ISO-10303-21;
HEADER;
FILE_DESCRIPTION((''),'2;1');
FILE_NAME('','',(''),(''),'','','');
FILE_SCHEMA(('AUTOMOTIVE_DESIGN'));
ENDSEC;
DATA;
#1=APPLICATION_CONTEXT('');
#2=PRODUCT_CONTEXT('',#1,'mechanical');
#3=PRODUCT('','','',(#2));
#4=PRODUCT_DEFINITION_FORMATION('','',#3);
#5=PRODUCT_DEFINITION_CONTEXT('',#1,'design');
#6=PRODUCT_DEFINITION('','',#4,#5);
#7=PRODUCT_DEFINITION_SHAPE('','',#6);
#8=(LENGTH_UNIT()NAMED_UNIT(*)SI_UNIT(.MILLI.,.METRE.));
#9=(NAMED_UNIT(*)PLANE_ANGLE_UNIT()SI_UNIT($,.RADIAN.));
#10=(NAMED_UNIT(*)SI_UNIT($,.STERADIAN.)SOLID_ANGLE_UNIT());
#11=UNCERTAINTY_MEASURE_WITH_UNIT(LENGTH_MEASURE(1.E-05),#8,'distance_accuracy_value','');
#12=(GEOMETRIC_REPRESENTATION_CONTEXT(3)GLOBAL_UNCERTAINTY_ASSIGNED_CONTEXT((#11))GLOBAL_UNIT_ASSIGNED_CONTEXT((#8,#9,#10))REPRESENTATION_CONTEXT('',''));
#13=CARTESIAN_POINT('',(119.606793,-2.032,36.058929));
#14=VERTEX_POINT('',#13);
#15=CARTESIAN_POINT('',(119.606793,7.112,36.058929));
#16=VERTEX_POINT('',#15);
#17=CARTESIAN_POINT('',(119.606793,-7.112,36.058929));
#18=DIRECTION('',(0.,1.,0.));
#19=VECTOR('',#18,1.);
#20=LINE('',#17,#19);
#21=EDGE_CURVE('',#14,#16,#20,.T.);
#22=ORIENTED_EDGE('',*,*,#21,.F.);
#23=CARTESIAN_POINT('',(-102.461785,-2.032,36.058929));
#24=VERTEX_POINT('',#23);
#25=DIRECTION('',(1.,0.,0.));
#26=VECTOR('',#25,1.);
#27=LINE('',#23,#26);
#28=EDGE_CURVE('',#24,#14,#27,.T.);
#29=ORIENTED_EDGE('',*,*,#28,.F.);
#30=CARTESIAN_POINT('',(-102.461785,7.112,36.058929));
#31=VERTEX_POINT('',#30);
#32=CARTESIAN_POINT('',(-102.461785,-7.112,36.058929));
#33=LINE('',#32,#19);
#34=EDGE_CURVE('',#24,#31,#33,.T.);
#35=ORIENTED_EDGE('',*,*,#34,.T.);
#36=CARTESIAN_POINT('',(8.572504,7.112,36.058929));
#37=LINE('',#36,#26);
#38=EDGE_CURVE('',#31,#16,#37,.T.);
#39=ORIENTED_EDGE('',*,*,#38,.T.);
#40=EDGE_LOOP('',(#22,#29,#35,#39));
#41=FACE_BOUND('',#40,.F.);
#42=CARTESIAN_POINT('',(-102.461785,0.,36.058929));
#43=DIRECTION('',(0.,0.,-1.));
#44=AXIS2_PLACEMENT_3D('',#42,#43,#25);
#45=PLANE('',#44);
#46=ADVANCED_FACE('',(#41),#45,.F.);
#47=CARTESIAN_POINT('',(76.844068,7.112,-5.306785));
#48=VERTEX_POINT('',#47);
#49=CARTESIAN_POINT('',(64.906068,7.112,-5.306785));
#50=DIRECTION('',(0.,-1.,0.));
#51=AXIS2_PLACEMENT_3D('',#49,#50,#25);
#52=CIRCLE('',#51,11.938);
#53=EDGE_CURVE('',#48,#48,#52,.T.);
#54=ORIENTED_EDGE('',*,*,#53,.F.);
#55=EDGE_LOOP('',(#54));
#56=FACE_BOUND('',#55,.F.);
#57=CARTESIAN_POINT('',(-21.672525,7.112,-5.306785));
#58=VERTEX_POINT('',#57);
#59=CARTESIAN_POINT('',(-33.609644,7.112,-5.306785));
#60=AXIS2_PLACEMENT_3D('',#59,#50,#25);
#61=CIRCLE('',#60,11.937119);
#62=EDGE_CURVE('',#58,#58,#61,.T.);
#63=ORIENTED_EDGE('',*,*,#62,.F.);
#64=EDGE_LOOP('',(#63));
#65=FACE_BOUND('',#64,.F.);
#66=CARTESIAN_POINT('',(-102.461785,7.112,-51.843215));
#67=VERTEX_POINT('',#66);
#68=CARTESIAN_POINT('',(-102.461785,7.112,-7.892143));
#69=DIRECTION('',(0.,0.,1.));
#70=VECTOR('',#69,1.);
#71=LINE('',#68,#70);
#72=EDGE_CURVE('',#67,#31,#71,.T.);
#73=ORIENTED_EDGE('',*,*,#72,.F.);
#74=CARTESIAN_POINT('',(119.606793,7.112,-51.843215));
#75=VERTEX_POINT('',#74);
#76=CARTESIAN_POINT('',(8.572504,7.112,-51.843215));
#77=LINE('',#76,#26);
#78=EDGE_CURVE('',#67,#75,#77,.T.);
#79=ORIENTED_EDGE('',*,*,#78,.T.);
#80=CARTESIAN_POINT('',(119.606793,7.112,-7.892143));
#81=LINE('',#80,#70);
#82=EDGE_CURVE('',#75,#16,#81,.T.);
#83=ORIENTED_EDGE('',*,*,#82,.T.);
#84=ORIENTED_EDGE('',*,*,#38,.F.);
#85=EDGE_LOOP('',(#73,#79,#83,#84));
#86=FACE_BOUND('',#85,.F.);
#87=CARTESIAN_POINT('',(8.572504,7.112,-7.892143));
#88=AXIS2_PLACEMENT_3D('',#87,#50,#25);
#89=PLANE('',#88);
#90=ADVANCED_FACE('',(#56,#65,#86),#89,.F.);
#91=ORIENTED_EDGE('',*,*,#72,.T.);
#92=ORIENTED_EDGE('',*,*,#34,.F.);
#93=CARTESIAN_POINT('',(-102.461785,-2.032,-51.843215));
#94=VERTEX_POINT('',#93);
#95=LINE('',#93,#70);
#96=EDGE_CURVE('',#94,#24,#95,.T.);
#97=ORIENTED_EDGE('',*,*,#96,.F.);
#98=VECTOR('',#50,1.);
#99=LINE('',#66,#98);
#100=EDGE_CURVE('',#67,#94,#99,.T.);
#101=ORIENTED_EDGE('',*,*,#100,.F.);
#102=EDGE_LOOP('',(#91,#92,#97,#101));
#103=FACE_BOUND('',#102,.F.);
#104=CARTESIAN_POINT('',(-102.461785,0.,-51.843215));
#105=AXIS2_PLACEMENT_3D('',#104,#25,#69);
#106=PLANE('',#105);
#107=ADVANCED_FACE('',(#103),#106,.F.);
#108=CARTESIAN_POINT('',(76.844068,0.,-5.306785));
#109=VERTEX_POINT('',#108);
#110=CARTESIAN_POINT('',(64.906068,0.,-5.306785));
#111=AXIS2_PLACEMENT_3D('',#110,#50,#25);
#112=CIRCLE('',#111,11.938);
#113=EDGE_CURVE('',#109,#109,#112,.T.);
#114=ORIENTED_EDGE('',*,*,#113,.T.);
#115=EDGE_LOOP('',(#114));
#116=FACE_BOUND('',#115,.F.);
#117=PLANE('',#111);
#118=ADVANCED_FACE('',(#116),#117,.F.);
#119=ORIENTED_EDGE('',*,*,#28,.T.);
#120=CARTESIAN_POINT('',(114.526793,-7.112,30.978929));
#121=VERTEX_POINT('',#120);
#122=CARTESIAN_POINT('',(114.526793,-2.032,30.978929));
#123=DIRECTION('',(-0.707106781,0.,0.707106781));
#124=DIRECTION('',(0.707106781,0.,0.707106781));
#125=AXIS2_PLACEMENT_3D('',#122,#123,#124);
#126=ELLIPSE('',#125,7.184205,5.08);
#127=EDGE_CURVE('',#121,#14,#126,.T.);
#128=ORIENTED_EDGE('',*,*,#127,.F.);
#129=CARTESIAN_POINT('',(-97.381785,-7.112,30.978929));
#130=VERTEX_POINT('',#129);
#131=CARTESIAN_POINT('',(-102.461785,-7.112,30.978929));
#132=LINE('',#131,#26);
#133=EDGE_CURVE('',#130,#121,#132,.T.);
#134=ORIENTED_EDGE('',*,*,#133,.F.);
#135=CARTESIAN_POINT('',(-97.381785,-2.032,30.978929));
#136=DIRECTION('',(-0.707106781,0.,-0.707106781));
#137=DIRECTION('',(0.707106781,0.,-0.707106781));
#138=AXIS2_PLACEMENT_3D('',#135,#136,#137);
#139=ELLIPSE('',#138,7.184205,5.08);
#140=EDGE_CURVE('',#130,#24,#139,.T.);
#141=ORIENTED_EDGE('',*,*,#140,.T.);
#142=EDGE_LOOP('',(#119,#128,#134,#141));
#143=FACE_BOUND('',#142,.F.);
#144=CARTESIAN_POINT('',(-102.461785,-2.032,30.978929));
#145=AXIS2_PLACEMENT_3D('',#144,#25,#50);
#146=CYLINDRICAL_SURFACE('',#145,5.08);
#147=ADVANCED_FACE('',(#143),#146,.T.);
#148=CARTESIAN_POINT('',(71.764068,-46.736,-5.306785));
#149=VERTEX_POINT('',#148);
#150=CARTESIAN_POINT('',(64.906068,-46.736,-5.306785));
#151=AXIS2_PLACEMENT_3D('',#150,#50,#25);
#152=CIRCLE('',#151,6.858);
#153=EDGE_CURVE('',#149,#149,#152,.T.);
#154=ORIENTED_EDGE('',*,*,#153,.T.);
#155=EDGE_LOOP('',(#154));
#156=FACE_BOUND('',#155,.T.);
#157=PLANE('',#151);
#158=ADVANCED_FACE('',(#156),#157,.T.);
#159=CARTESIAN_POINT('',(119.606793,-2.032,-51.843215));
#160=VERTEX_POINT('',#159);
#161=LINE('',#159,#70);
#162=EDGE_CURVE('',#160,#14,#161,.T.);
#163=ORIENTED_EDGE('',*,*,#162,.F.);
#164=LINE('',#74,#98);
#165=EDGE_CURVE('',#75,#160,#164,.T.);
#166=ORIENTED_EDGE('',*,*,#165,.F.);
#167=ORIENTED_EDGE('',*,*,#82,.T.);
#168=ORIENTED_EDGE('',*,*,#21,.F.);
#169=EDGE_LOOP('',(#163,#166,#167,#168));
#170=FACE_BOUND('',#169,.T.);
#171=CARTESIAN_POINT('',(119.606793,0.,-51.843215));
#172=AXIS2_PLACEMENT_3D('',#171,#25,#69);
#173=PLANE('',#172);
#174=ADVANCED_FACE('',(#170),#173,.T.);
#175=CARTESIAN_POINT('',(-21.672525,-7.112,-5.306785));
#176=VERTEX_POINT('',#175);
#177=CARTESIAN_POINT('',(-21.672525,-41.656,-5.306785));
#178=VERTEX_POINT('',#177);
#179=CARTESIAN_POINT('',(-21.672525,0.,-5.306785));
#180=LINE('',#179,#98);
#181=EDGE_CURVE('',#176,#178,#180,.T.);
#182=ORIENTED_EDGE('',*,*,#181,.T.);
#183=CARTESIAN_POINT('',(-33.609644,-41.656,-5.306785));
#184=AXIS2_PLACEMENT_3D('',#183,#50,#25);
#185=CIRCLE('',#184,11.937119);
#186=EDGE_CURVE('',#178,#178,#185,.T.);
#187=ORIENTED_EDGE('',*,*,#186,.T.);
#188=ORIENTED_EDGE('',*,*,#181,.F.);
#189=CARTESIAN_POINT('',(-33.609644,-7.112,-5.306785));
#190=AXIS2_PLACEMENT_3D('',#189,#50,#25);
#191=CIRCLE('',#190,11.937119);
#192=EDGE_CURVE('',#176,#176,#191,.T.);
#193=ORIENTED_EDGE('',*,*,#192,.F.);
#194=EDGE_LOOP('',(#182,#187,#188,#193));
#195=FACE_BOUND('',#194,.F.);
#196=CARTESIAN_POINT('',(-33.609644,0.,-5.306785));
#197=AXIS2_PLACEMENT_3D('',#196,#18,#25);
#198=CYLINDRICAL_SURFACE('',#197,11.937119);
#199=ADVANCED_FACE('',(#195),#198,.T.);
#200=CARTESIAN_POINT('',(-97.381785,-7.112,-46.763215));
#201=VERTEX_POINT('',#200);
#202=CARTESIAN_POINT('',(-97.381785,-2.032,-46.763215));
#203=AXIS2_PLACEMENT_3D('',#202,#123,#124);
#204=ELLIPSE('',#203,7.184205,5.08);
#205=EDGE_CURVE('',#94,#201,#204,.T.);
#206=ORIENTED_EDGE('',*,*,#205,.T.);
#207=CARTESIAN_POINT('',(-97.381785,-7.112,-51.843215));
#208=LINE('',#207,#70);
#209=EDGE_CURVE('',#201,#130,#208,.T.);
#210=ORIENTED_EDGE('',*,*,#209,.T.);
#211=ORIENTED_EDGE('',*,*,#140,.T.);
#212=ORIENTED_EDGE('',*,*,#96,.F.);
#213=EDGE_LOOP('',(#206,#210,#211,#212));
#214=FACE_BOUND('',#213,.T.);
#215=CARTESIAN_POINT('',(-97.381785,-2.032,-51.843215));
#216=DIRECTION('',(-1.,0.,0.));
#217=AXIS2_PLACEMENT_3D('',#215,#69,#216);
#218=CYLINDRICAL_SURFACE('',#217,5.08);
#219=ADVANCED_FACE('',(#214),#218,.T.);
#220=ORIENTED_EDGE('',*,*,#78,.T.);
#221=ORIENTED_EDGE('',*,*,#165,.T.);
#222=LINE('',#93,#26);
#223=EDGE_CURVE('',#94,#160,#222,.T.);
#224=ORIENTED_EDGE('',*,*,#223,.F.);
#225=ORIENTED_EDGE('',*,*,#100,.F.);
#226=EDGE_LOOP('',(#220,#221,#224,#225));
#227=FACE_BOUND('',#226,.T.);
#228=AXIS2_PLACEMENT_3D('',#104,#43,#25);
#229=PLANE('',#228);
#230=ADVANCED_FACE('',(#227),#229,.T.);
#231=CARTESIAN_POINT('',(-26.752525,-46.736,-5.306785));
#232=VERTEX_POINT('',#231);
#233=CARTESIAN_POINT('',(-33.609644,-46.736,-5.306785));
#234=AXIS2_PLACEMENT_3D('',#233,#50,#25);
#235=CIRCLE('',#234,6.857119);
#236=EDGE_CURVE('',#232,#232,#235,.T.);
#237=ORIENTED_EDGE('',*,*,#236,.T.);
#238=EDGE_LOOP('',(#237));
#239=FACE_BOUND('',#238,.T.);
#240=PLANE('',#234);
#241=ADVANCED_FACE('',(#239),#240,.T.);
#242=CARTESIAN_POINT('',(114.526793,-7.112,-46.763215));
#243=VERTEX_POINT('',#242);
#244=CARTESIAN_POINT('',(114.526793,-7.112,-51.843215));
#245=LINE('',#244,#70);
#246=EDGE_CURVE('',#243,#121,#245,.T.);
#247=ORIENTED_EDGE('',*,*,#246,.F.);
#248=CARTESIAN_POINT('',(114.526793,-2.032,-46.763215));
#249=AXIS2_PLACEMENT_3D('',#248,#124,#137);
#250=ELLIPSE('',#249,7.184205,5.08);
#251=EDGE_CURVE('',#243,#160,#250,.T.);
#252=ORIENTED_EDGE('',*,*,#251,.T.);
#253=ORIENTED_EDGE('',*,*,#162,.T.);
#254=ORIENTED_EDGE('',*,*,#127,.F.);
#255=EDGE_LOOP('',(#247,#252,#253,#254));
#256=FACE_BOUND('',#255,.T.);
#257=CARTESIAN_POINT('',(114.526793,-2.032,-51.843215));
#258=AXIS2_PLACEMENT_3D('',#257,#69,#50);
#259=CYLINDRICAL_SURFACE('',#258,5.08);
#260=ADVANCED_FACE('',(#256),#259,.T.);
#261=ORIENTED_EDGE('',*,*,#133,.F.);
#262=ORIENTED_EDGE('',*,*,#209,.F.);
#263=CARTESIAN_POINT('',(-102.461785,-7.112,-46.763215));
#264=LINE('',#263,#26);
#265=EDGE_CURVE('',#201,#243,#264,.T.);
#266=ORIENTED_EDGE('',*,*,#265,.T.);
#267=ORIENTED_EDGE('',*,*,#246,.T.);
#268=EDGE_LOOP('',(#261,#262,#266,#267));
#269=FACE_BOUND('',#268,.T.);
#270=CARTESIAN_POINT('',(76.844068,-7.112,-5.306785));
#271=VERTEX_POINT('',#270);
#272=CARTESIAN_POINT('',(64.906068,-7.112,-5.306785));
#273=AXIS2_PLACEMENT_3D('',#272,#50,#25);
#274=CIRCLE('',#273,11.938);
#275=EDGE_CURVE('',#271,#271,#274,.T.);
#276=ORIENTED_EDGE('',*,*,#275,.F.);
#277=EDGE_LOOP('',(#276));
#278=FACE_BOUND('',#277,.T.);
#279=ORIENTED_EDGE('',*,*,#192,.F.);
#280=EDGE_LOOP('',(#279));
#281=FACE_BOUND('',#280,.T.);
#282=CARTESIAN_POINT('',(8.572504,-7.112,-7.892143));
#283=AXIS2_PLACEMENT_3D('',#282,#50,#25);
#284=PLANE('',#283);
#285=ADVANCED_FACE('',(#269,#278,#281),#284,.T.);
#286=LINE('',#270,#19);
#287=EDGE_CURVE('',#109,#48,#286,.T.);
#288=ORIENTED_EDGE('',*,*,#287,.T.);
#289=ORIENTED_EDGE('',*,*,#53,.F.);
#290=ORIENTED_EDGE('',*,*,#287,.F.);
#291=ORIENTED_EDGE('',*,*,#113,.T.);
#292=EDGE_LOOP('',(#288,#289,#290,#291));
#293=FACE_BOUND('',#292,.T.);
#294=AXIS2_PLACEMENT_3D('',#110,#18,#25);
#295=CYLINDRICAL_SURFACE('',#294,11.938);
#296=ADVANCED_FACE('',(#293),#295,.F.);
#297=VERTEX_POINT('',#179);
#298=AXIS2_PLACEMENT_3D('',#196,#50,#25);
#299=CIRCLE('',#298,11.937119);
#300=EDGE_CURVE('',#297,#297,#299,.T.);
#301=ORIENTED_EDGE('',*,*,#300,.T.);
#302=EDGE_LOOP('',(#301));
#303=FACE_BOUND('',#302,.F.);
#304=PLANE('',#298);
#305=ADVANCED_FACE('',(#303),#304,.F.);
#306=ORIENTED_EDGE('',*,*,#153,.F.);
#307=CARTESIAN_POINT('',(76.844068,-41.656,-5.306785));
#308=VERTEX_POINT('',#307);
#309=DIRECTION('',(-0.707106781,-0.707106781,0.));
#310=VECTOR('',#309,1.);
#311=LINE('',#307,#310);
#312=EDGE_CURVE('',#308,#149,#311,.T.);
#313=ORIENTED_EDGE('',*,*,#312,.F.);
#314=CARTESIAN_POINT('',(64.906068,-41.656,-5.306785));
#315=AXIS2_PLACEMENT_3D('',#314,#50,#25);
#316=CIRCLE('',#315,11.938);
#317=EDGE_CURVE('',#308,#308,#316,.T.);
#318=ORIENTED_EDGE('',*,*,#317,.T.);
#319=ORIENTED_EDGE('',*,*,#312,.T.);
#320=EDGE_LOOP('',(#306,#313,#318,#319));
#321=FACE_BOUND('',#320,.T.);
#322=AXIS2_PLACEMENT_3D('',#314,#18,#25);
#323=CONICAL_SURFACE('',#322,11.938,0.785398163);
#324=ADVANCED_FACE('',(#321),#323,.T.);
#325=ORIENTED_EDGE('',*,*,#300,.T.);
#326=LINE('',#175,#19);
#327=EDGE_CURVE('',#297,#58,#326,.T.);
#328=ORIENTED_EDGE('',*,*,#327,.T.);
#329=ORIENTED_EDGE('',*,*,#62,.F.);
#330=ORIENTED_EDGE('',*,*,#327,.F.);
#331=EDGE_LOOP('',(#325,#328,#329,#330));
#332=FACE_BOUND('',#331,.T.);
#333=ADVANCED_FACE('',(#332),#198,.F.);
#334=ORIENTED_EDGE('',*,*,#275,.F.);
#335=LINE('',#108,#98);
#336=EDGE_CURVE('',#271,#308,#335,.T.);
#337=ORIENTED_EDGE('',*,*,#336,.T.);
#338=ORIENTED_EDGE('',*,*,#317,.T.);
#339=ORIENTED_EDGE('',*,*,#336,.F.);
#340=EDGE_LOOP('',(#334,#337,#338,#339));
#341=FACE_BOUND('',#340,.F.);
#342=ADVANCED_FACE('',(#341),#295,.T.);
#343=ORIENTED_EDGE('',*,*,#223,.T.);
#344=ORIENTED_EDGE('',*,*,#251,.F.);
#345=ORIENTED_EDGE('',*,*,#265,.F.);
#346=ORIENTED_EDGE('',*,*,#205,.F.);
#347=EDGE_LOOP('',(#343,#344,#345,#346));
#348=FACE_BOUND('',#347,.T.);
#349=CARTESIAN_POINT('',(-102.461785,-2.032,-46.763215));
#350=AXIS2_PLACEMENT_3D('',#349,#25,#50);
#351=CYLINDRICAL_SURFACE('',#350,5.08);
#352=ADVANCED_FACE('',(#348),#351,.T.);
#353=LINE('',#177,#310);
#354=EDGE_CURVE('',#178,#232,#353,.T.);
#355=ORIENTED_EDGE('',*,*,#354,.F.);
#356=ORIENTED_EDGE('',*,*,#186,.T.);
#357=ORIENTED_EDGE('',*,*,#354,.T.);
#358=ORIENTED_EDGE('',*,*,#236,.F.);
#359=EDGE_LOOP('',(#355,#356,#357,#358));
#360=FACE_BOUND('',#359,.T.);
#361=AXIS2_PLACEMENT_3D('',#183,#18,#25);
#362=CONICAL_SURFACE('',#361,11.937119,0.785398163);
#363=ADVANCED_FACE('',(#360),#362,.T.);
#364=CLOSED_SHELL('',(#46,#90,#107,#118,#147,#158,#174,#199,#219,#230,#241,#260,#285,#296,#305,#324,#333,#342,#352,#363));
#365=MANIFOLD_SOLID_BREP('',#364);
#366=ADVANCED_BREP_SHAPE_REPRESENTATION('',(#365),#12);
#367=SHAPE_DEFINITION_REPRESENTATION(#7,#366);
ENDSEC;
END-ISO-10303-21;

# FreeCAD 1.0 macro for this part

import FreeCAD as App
import Part
import Sketcher
Q = App.Units.Quantity


def edges_at(feature, points):
    """Names of the edges that pass closest to the given points."""
    edges = feature.Shape.Edges
    near = lambda p: min(range(len(edges)), key=lambda i: edges[i].distToShape(Part.Vertex(*p))[0])
    return sorted({f"Edge{near(p) + 1}" for p in points})


def add_polygon(sketch, points):
    """Adds a closed chain of lines whose ends are joined by coincident constraints."""
    first, n = sketch.GeometryCount, len(points)
    for a, b in zip(points, points[1:] + points[:1]):
        sketch.addGeometry(Part.LineSegment(App.Vector(*a, 0), App.Vector(*b, 0)), False)
    for i in range(n):
        sketch.addConstraint(Sketcher.Constraint("Coincident", first + i, 2, first + (i + 1) % n, 1))

doc = App.newDocument("Part")
body = doc.addObject("PartDesign::Body", "Body")

# Sketch on XZ plane
sketch1 = doc.addObject("Sketcher::SketchObject", "Sketch")
body.addObject(sketch1)
sketch1.AttachmentSupport = (doc.XZ_Plane, [""])
sketch1.MapMode = "FlatFace"
add_polygon(sketch1, [(-102, 36), (-102, -52), (120, -52), (120, 36)])  # lines 0-3
sketch1.addGeometry(Part.Circle(App.Vector(-34, -5, 0), App.Vector(0, 0, 1), 12), False)  # 4
sketch1.addGeometry(Part.Circle(App.Vector(65, -5, 0), App.Vector(0, 0, 1), 12), False)  # 5
sketch1.addConstraint(Sketcher.Constraint("Vertical", 0))
sketch1.addConstraint(Sketcher.Constraint("Horizontal", 1))
sketch1.addConstraint(Sketcher.Constraint("Vertical", 2))
sketch1.addConstraint(Sketcher.Constraint("Horizontal", 3))
sketch1.addConstraint(Sketcher.Constraint("Horizontal", 4, 3, 5, 3))
sketch1.addConstraint(Sketcher.Constraint("Diameter", 5, Q("0.94 in")))
sketch1.addConstraint(Sketcher.Constraint("Diameter", 4, 23.874238))
sketch1.addConstraint(Sketcher.Constraint("DistanceX", 1, 1, 1, 2, 222.068578))
sketch1.addConstraint(Sketcher.Constraint("DistanceY", 0, 2, 0, 1, 87.902144))
sketch1.addConstraint(Sketcher.Constraint("DistanceX", -1, 1, 5, 3, 64.906068))
sketch1.addConstraint(Sketcher.Constraint("DistanceY", -1, 1, 2, 2, 36.058929))
sketch1.addConstraint(Sketcher.Constraint("DistanceX", 0, 2, 4, 3, 68.852141))
sketch1.addConstraint(Sketcher.Constraint("DistanceY", 0, 2, 4, 3, 46.53643))
sketch1.addConstraint(Sketcher.Constraint("DistanceX", 4, 3, -1, 1, 33.609644))
pad1 = doc.addObject("PartDesign::Pad", "Pad")
body.addObject(pad1)
pad1.Profile = sketch1
pad1.Length = Q("0.56 in")
pad1.Midplane = True
doc.recompute()

fillet = doc.addObject("PartDesign::Fillet", "Fillet")
body.addObject(fillet)
fillet.Base = (pad1, edges_at(pad1, [
    (8.573, -7.112, 36.059),
    (-102.462, -7.112, -7.892),
    (8.573, -7.112, -51.843),
    (119.607, -7.112, -7.892),
]))
fillet.Radius = Q("0.2 in")

# Sketch on XZ plane
sketch2 = doc.addObject("Sketcher::SketchObject", "Sketch001")
body.addObject(sketch2)
sketch2.AttachmentSupport = (doc.XZ_Plane, [""])
sketch2.MapMode = "FlatFace"
sketch2.addGeometry(Part.Circle(App.Vector(65, -5, 0), App.Vector(0, 0, 1), 12), False)
sketch2.addGeometry(Part.Circle(App.Vector(-34, -5, 0), App.Vector(0, 0, 1), 12), False)
sketch2.addConstraint(Sketcher.Constraint("Horizontal", 0, 3, 1, 3))
sketch2.addConstraint(Sketcher.Constraint("Diameter", 0, Q("0.94 in")))
sketch2.addConstraint(Sketcher.Constraint("Diameter", 1, 23.874238))
sketch2.addConstraint(Sketcher.Constraint("DistanceX", -1, 1, 0, 3, 64.906068))
sketch2.addConstraint(Sketcher.Constraint("DistanceY", 0, 3, -1, 1, 5.306785))
sketch2.addConstraint(Sketcher.Constraint("DistanceX", 1, 3, -1, 1, 33.609644))
pad2 = doc.addObject("PartDesign::Pad", "Pad001")
body.addObject(pad2)
pad2.Profile = sketch2
pad2.Length = Q("1.84 in")
doc.recompute()

chamfer = doc.addObject("PartDesign::Chamfer", "Chamfer")
body.addObject(chamfer)
chamfer.Base = (pad2, edges_at(pad2, [(-45.547, -46.736, -5.307), (52.968, -46.736, -5.307)]))
chamfer.Size = Q("0.2 in")

doc.recompute()
